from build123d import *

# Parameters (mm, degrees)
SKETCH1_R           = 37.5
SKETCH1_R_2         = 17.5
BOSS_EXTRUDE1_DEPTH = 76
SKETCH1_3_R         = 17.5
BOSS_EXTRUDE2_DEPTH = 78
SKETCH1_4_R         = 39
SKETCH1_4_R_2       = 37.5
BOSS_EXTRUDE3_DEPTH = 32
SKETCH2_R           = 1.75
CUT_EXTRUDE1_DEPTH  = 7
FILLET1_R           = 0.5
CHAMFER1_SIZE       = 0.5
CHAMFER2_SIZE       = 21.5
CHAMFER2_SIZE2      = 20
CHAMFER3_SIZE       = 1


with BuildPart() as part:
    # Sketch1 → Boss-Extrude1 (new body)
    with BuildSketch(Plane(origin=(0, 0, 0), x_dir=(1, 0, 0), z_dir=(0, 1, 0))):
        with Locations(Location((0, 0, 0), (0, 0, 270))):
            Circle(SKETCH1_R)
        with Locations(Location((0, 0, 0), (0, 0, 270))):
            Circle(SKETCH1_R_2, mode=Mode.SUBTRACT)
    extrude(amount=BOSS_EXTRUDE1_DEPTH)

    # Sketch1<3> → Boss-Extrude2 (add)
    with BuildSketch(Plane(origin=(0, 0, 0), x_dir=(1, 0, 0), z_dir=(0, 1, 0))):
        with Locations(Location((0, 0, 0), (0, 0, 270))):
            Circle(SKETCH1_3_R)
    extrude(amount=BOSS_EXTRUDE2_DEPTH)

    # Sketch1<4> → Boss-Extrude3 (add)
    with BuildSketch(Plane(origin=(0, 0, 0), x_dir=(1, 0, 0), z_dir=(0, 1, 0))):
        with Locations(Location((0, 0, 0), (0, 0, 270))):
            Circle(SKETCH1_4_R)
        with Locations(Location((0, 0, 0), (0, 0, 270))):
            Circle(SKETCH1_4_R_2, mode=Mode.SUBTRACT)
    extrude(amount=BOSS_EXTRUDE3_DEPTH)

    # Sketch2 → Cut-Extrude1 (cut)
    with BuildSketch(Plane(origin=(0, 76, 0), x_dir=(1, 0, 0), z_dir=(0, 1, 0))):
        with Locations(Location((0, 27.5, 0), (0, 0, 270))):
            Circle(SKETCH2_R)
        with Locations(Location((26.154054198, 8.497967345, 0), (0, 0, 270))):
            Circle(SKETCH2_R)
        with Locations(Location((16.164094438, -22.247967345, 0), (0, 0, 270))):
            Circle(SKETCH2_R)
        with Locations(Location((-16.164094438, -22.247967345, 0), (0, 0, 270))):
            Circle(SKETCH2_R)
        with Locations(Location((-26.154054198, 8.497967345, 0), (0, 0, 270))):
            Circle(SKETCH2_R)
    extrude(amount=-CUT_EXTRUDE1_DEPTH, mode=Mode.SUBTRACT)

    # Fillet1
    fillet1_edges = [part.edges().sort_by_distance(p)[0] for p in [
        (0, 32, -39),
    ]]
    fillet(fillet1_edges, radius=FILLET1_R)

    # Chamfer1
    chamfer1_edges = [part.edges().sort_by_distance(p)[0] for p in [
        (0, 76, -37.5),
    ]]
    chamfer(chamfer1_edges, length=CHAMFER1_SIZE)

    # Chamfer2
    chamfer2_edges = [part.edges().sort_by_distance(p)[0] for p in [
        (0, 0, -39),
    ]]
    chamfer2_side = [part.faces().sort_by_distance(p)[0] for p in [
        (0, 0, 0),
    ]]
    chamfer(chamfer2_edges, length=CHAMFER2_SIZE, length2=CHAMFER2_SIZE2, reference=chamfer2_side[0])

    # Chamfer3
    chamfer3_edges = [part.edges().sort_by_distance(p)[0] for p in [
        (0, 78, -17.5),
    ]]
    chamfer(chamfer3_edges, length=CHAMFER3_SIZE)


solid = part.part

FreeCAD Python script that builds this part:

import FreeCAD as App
import Part
import Sketcher

V = App.Vector
Q = App.Units.Quantity


def edges_at(feature, points):
    """Names of the edges that pass closest to the given points."""
    edges = feature.Shape.Edges
    near = lambda p: min(range(len(edges)), key=lambda i: edges[i].distToShape(Part.Vertex(*p))[0])
    return sorted({f"Edge{near(p) + 1}" for p in points})

doc = App.newDocument("Part")
body = doc.addObject("PartDesign::Body", "Body")

# Sketch on XZ plane
sketch1 = body.newObject("Sketcher::SketchObject", "Sketch")
sketch1.AttachmentSupport = (doc.getObject("XZ_Plane"), [""])
sketch1.MapMode = "FlatFace"
sketch1.addGeometry(Part.Circle(V(0, 0, 0), V(0, 0, 1), 38), False)
sketch1.addGeometry(Part.Circle(V(0, 0, 0), V(0, 0, 1), 18), False)
sketch1.addConstraint(Sketcher.Constraint("Coincident", 0, 3, -1, 1))
sketch1.addConstraint(Sketcher.Constraint("Coincident", 1, 3, -1, 1))
sketch1.addConstraint(Sketcher.Constraint("Diameter", 0, Q("75 mm")))
sketch1.addConstraint(Sketcher.Constraint("Diameter", 1, Q("35 mm")))
pad1 = body.newObject("PartDesign::Pad", "Pad")
pad1.Profile = sketch1
pad1.Length = 76
pad1.Reversed = True

# Sketch on XZ plane
sketch2 = body.newObject("Sketcher::SketchObject", "Sketch001")
sketch2.AttachmentSupport = (doc.getObject("XZ_Plane"), [""])
sketch2.MapMode = "FlatFace"
sketch2.addGeometry(Part.Circle(V(0, 0, 0), V(0, 0, 1), 18), False)
sketch2.addConstraint(Sketcher.Constraint("Coincident", 0, 3, -1, 1))
sketch2.addConstraint(Sketcher.Constraint("Diameter", 0, Q("35 mm")))
pad2 = body.newObject("PartDesign::Pad", "Pad001")
pad2.Profile = sketch2
pad2.Length = 78
pad2.Reversed = True

# Sketch on XZ plane
sketch3 = body.newObject("Sketcher::SketchObject", "Sketch002")
sketch3.AttachmentSupport = (doc.getObject("XZ_Plane"), [""])
sketch3.MapMode = "FlatFace"
sketch3.addGeometry(Part.Circle(V(0, 0, 0), V(0, 0, 1), 39), False)
sketch3.addGeometry(Part.Circle(V(0, 0, 0), V(0, 0, 1), 38), False)
sketch3.addConstraint(Sketcher.Constraint("Coincident", 0, 3, -1, 1))
sketch3.addConstraint(Sketcher.Constraint("Coincident", 1, 3, -1, 1))
sketch3.addConstraint(Sketcher.Constraint("Diameter", 0, Q("78 mm")))
sketch3.addConstraint(Sketcher.Constraint("Diameter", 1, Q("75 mm")))
pad3 = body.newObject("PartDesign::Pad", "Pad002")
pad3.Profile = sketch3
pad3.Length = 32
pad3.Reversed = True

# Sketch on XZ plane
sketch4 = body.newObject("Sketcher::SketchObject", "Sketch003")
sketch4.AttachmentSupport = (doc.getObject("XZ_Plane"), [""])
sketch4.MapMode = "FlatFace"
sketch4.AttachmentOffset = App.Placement(V(0, 0, -76), App.Rotation())
sketch4.addGeometry(Part.Circle(V(0, -27.5, 0), V(0, 0, 1), 1.8), False)
sketch4.addGeometry(Part.Circle(V(26.2, -8.5, 0), V(0, 0, 1), 1.8), False)
sketch4.addGeometry(Part.Circle(V(16.2, 22.2, 0), V(0, 0, 1), 1.8), False)
sketch4.addGeometry(Part.Circle(V(-16.2, 22.2, 0), V(0, 0, 1), 1.8), False)
sketch4.addGeometry(Part.Circle(V(-26.2, -8.5, 0), V(0, 0, 1), 1.8), False)
sketch4.addConstraint(Sketcher.Constraint("Equal", 0, 1))
sketch4.addConstraint(Sketcher.Constraint("Equal", 1, 2))
sketch4.addConstraint(Sketcher.Constraint("Equal", 2, 3))
sketch4.addConstraint(Sketcher.Constraint("Equal", 3, 4))
sketch4.addConstraint(Sketcher.Constraint("Symmetric", 2, 3, 3, 3, -2))
sketch4.addConstraint(Sketcher.Constraint("Symmetric", 1, 3, 4, 3, -2))
sketch4.addConstraint(Sketcher.Constraint("PointOnObject", 0, 3, -2))
sketch4.addConstraint(Sketcher.Constraint("Diameter", 0, Q("3.5 mm")))
sketch4.addConstraint(Sketcher.Constraint("DistanceY", 0, 3, -1, 1, Q("27.5 mm")))
sketch4.addConstraint(Sketcher.Constraint("DistanceX", 2, 3, 1, 3, Q("9.98996 mm")))
sketch4.addConstraint(Sketcher.Constraint("DistanceX", 3, 3, 2, 3, Q("32.328189 mm")))
sketch4.addConstraint(Sketcher.Constraint("DistanceY", 1, 3, -1, 1, Q("8.497967 mm")))
sketch4.addConstraint(Sketcher.Constraint("DistanceY", -1, 1, 2, 3, Q("22.247967 mm")))
pocket1 = body.newObject("PartDesign::Pocket", "Pocket")
pocket1.Profile = sketch4
pocket1.Length = 7
pocket1.Reversed = True
doc.recompute()

fillet = body.newObject("PartDesign::Fillet", "Fillet")
fillet.Base = (pocket1, edges_at(pocket1, [(0, 32, -39)]))
fillet.Radius = 0.5
doc.recompute()

chamfer = body.newObject("PartDesign::Chamfer", "Chamfer")
chamfer.Base = (fillet, edges_at(fillet, [(0, 76, -37.5)]))
chamfer.Size = 0.5
doc.recompute()

chamfer2 = body.newObject("PartDesign::Chamfer", "Chamfer001")
chamfer2.Base = (chamfer, edges_at(chamfer, [(0, 0, -39)]))
chamfer2.ChamferType = "Two distances"
chamfer2.Size = 21.5
chamfer2.Size2 = 20
chamfer2.FlipDirection = True
doc.recompute()

chamfer3 = body.newObject("PartDesign::Chamfer", "Chamfer002")
chamfer3.Base = (chamfer2, edges_at(chamfer2, [(0, 78, -17.5)]))
chamfer3.Size = 1

doc.recompute()
